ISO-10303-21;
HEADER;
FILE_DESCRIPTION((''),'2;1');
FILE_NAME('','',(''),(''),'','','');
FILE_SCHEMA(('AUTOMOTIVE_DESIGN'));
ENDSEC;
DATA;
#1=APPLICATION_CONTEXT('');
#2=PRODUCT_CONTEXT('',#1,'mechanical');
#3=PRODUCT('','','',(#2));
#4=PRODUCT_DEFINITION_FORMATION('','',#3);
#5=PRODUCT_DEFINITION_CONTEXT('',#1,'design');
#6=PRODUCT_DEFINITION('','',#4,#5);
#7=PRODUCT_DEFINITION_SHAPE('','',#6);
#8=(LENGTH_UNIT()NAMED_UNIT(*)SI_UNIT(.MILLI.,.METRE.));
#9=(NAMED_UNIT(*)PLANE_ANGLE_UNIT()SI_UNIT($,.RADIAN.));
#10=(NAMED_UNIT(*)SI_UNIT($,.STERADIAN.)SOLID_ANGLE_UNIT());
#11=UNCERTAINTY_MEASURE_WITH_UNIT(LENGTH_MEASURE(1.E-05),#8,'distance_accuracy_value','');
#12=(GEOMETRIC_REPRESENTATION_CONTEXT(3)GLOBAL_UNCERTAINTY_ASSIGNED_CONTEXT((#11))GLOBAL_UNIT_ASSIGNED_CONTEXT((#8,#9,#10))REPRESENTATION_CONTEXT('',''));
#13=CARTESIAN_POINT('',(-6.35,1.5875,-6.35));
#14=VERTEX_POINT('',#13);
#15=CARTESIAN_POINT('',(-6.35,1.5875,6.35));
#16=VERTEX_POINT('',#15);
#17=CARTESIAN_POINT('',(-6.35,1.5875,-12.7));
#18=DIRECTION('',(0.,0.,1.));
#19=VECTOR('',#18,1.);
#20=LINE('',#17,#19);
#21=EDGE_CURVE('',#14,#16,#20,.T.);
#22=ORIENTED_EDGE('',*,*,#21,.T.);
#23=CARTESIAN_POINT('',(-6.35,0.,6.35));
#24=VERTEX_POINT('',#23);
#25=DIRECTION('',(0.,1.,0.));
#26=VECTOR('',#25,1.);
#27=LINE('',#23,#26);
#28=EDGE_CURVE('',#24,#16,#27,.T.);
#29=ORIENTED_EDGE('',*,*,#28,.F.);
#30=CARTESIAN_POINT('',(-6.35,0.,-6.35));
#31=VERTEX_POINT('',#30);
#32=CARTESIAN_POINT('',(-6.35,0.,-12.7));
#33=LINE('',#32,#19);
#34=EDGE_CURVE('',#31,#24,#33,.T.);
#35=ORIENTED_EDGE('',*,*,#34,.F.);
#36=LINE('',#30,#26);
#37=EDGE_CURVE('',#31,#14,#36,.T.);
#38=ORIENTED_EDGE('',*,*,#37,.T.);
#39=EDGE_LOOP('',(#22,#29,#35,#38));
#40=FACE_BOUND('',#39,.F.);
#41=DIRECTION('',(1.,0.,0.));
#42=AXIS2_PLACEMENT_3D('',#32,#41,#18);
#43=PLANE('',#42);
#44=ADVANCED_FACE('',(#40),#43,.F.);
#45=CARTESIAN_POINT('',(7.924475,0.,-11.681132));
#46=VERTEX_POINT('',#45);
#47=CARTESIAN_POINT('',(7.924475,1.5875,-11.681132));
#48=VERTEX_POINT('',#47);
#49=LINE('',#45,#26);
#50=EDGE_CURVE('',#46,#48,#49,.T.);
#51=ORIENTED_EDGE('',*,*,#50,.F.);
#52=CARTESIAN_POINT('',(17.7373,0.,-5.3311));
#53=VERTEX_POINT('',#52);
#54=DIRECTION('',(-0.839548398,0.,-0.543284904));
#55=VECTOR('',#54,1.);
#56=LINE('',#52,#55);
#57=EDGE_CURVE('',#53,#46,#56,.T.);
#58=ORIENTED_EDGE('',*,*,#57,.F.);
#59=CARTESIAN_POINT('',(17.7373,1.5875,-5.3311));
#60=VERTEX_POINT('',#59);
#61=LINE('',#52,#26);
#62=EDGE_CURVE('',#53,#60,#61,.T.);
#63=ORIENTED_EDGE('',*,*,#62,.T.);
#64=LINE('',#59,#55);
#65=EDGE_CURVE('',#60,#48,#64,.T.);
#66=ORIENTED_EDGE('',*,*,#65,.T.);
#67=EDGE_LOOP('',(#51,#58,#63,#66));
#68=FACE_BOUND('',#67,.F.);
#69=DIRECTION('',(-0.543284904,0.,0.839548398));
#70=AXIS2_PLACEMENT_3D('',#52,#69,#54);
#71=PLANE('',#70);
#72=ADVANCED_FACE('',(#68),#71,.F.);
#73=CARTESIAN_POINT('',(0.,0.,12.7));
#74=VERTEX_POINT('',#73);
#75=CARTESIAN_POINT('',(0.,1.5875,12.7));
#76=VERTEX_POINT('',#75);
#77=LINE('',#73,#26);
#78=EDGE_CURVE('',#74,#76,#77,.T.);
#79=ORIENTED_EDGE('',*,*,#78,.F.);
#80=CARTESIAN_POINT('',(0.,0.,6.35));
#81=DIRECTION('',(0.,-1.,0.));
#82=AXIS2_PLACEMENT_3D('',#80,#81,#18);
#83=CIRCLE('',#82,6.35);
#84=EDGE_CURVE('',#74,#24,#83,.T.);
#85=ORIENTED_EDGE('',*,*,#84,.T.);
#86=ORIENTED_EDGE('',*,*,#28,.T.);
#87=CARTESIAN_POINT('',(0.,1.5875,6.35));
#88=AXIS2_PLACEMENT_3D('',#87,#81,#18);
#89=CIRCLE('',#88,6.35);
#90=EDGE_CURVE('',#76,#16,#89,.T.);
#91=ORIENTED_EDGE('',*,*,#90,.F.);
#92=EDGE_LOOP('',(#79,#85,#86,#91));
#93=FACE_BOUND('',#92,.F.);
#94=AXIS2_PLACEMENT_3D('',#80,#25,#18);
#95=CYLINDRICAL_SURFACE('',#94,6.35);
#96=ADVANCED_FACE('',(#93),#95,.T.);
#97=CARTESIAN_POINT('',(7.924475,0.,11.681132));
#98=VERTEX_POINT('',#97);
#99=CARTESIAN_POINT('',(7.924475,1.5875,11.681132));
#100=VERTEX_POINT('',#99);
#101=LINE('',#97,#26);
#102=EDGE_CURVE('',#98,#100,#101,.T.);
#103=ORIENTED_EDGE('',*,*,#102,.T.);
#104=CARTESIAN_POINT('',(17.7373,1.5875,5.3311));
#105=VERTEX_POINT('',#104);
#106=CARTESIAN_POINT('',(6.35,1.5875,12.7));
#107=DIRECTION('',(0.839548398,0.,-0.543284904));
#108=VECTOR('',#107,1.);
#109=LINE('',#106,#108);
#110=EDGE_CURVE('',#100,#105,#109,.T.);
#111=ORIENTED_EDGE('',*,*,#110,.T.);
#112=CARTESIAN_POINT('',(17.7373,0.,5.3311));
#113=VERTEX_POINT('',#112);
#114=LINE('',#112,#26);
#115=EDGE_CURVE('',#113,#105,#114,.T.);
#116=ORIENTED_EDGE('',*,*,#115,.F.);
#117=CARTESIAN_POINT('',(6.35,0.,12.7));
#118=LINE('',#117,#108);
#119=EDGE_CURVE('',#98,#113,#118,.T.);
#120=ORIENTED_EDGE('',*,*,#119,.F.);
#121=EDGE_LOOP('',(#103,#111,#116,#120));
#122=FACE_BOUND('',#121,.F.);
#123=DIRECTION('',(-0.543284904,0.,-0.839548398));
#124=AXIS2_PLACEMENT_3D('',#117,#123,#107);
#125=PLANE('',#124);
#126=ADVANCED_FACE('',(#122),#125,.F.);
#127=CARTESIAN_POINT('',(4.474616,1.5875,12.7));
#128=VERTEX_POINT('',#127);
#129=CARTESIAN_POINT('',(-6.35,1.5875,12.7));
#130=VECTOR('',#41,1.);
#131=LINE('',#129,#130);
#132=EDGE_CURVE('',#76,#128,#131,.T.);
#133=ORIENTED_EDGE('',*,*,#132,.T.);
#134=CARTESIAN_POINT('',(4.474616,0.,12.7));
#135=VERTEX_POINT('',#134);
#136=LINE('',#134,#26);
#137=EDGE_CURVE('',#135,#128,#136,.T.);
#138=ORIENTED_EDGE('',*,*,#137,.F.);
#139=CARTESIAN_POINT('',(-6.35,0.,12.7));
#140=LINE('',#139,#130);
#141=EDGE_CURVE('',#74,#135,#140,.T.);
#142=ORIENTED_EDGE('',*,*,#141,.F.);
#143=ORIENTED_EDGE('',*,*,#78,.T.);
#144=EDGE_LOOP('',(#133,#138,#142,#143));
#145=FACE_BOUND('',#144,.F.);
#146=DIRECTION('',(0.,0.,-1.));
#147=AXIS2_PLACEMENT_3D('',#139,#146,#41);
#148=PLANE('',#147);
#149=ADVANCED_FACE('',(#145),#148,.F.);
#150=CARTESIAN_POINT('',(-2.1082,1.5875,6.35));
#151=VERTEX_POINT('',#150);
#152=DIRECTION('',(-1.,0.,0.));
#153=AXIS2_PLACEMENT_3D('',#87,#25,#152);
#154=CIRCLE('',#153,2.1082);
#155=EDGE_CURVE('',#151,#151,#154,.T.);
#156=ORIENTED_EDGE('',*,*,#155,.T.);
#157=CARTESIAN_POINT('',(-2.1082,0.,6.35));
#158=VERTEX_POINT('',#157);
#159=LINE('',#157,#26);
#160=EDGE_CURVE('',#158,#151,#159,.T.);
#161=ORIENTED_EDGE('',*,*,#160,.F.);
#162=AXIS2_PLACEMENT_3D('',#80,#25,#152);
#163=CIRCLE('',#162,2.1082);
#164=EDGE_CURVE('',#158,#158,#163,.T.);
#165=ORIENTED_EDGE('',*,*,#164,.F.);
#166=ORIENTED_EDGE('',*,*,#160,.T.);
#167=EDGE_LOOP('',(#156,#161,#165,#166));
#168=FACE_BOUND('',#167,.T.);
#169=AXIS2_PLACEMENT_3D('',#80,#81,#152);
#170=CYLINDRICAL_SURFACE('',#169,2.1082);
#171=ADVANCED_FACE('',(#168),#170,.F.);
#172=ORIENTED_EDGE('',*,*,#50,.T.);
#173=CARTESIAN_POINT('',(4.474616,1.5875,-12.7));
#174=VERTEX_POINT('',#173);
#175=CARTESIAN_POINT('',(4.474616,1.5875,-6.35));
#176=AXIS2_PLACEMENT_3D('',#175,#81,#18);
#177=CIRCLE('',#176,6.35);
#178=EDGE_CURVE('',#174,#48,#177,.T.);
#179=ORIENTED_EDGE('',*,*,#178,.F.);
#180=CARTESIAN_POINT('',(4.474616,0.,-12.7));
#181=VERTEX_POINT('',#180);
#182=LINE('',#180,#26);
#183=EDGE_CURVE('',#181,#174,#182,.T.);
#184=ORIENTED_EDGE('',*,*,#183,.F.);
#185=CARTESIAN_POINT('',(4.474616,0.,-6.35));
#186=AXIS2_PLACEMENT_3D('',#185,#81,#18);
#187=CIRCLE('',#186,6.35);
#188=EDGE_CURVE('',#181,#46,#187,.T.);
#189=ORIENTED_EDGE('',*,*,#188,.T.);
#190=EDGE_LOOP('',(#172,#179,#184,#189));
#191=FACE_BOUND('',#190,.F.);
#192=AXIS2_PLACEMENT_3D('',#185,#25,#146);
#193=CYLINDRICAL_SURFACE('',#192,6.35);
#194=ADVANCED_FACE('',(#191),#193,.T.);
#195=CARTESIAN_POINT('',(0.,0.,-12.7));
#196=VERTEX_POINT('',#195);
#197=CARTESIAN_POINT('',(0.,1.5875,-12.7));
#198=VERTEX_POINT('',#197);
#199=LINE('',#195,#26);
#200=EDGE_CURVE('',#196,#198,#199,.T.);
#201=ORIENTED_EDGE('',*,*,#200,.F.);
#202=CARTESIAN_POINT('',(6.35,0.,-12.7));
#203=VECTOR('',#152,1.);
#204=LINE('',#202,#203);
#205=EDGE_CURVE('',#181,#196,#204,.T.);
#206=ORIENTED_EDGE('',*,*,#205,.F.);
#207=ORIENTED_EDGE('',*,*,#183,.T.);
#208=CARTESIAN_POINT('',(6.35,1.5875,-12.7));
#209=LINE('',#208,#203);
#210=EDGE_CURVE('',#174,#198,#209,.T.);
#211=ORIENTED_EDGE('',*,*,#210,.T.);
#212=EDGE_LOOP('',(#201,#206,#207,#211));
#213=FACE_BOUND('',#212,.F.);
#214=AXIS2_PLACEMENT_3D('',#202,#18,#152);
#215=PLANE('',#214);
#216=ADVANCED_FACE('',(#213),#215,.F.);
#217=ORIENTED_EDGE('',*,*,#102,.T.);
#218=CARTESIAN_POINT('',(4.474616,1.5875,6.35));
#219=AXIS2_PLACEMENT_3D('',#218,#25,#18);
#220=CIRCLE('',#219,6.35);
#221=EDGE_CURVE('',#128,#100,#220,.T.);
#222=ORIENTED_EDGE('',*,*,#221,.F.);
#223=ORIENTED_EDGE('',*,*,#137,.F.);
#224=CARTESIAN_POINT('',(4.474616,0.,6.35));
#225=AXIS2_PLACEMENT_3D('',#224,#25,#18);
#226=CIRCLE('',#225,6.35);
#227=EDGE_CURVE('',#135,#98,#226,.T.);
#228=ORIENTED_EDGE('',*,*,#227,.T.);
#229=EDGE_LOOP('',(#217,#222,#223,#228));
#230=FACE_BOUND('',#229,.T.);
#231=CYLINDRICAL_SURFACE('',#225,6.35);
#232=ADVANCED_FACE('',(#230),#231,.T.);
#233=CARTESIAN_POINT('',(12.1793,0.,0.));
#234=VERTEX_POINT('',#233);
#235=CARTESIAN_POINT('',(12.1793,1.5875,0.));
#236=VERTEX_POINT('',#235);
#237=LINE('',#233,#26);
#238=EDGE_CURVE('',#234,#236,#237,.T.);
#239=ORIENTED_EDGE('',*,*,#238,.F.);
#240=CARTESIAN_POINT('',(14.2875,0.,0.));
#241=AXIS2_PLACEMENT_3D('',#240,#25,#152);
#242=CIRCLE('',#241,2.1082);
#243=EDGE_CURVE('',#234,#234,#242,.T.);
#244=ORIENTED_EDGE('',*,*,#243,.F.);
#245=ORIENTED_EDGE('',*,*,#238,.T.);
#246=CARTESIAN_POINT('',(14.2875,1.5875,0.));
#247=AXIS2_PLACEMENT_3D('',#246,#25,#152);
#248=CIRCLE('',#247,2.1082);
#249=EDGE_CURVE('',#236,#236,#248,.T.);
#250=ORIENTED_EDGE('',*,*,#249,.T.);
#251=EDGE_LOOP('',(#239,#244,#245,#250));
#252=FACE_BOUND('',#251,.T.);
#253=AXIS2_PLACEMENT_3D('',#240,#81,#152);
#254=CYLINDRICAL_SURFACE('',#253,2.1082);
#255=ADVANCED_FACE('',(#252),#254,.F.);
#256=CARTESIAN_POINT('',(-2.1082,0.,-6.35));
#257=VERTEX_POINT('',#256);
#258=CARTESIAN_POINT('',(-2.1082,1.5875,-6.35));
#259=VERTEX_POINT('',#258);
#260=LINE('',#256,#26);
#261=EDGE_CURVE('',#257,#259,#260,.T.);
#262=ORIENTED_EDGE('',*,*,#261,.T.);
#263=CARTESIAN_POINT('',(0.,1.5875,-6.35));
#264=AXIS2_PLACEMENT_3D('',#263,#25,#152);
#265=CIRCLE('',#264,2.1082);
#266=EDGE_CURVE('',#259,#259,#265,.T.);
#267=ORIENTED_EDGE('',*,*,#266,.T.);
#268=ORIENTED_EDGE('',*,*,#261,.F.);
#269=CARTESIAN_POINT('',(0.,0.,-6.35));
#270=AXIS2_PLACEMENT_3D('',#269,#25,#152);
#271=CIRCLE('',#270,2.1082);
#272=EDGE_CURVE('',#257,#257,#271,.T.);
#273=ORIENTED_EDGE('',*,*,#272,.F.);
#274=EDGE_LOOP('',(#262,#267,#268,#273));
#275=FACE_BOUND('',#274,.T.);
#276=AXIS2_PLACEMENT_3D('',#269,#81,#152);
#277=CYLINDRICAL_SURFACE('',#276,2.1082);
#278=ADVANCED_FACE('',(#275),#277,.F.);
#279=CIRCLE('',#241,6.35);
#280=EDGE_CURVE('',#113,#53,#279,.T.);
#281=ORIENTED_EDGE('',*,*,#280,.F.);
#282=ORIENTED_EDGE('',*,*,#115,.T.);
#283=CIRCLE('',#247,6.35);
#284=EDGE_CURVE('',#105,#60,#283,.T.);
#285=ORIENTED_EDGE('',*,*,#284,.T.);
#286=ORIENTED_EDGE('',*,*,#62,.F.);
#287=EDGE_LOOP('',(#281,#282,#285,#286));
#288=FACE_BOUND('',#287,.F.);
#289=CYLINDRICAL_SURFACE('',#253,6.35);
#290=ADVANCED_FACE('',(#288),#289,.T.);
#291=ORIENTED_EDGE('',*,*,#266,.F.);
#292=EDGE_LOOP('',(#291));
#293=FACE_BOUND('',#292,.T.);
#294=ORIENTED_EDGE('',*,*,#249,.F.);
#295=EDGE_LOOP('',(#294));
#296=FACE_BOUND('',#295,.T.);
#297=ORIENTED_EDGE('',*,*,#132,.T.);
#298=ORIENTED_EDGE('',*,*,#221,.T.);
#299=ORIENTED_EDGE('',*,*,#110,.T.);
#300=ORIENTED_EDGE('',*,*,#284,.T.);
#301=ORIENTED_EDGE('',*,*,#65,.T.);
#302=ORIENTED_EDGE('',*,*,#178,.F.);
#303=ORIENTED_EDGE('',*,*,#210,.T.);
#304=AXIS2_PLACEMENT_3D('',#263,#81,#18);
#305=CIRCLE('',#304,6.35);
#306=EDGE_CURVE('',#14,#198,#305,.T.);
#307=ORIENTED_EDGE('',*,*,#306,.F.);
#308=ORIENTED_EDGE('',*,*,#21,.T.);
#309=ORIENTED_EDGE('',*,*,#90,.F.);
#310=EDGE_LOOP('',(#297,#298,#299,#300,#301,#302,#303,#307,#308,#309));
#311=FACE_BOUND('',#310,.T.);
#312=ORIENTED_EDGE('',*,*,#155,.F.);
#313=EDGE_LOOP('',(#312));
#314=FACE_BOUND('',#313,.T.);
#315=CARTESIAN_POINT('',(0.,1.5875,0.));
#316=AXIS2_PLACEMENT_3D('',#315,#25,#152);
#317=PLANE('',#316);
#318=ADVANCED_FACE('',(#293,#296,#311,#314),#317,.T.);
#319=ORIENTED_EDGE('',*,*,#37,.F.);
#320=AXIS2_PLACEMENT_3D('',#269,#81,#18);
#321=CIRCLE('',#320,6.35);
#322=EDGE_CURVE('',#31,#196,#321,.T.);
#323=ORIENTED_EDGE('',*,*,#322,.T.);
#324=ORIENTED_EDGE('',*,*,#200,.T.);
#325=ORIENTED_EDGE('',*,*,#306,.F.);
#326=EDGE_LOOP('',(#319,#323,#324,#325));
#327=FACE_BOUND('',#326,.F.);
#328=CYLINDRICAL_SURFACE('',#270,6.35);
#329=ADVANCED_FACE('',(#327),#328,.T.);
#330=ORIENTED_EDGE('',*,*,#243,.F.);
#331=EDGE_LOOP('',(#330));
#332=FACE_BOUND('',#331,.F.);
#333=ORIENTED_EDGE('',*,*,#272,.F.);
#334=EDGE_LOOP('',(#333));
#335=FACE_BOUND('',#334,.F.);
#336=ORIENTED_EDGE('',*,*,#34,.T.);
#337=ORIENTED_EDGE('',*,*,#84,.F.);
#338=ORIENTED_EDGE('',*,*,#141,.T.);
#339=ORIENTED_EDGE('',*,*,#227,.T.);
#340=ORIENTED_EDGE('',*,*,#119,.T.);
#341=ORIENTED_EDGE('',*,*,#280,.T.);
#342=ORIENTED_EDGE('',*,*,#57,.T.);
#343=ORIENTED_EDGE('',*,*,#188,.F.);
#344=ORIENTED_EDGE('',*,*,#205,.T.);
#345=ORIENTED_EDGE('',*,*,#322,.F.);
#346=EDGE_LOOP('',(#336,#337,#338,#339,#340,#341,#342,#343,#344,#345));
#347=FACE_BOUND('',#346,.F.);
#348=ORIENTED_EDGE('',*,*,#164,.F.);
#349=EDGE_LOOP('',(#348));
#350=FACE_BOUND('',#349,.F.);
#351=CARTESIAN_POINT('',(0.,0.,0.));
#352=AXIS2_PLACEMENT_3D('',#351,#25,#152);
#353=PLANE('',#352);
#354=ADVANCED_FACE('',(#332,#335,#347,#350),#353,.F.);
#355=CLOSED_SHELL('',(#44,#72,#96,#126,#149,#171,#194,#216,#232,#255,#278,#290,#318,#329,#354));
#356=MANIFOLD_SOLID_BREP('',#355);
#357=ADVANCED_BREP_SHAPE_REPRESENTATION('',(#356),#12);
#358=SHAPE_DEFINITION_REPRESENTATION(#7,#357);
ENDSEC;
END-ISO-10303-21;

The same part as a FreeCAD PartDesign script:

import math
import FreeCAD as App
import Part
import Sketcher
from FreeCAD import Vector
Q = App.Units.Quantity


def edges_at(feature, points):
    """Names of the edges that pass closest to the given points."""
    edges = feature.Shape.Edges
    near = lambda p: min(range(len(edges)), key=lambda i: edges[i].distToShape(Part.Vertex(*p))[0])
    return sorted({f"Edge{near(p) + 1}" for p in points})

doc = App.newDocument("Part")
body = doc.addObject("PartDesign::Body", "Body")

sketch1 = doc.addObject("Sketcher::SketchObject", "Sketch")
body.addObject(sketch1)
sketch1.AttachmentSupport = (doc.XZ_Plane, [""])
sketch1.MapMode = "FlatFace"
sketch1.addGeometry([
    Part.LineSegment(Vector(-6.3, 12.7, 0), Vector(6.3, 12.7, 0)),
    Part.LineSegment(Vector(6.3, 12.7, 0), Vector(17.7, 5.3, 0)),
    Part.ArcOfCircle(Part.Circle(Vector(14.3, 0, 0), Vector(0, 0, 1), 6.3), math.radians(-57), math.radians(57)),
    Part.LineSegment(Vector(17.7, -5.3, 0), Vector(6.3, -12.7, 0)),
    Part.LineSegment(Vector(6.3, -12.7, 0), Vector(-6.3, -12.7, 0)),
    Part.LineSegment(Vector(-6.3, -12.7, 0), Vector(-6.3, 12.7, 0)),
    Part.Circle(Vector(0, -6.3, 0), Vector(0, 0, 1), 2.1),
    Part.Circle(Vector(0, 6.3, 0), Vector(0, 0, 1), 2.1),
    Part.Circle(Vector(14.3, 0, 0), Vector(0, 0, 1), 2.1),
], False)
sketch1.addConstraint([
    Sketcher.Constraint("Coincident", 0, 2, 1, 1),
    Sketcher.Constraint("Tangent", 1, 2, 2, 2),
    Sketcher.Constraint("Tangent", 2, 1, 3, 1),
    Sketcher.Constraint("Coincident", 3, 2, 4, 1),
    Sketcher.Constraint("Coincident", 4, 2, 5, 1),
    Sketcher.Constraint("Coincident", 5, 2, 0, 1),
    Sketcher.Constraint("Horizontal", 0),
    Sketcher.Constraint("Horizontal", 4),
    Sketcher.Constraint("Vertical", 5),
    Sketcher.Constraint("Coincident", 8, 3, 2, 3),
    Sketcher.Constraint("Equal", 6, 7),
    Sketcher.Constraint("Equal", 7, 8),
    Sketcher.Constraint("Symmetric", 6, 3, 7, 3, -1, 1),
    Sketcher.Constraint("Symmetric", 0, 2, 4, 2, -1, 1),
    Sketcher.Constraint("Symmetric", 1, 2, 2, 1, -1),
    Sketcher.Constraint("PointOnObject", 6, 3, -2),
    Sketcher.Constraint("DistanceY", 5, 1, 5, 2, Q("1 in")),
    Sketcher.Constraint("Radius", 2, Q("0.25 in")),
    Sketcher.Constraint("Diameter", 6, Q("0.166 in")),
    Sketcher.Constraint("DistanceX", 0, 1, 0, 2, Q("0.5 in")),
    Sketcher.Constraint("DistanceY", 6, 3, 7, 3, Q("0.5 in")),
    Sketcher.Constraint("DistanceX", 0, 2, 2, 3, Q("0.3125 in")),
])
pad1 = doc.addObject("PartDesign::Pad", "Pad")
body.addObject(pad1)
pad1.Profile = sketch1
pad1.Length = Q("0.0625 in")
pad1.Reversed = True
doc.recompute()

fillet = doc.addObject("PartDesign::Fillet", "Fillet")
body.addObject(fillet)
fillet.Base = (pad1, edges_at(pad1, [
    (6.35, 0.794, 12.7),
    (-6.35, 0.794, 12.7),
    (6.35, 0.794, -12.7),
    (-6.35, 0.794, -12.7),
]))
fillet.Radius = Q("0.25 in")

doc.recompute()
